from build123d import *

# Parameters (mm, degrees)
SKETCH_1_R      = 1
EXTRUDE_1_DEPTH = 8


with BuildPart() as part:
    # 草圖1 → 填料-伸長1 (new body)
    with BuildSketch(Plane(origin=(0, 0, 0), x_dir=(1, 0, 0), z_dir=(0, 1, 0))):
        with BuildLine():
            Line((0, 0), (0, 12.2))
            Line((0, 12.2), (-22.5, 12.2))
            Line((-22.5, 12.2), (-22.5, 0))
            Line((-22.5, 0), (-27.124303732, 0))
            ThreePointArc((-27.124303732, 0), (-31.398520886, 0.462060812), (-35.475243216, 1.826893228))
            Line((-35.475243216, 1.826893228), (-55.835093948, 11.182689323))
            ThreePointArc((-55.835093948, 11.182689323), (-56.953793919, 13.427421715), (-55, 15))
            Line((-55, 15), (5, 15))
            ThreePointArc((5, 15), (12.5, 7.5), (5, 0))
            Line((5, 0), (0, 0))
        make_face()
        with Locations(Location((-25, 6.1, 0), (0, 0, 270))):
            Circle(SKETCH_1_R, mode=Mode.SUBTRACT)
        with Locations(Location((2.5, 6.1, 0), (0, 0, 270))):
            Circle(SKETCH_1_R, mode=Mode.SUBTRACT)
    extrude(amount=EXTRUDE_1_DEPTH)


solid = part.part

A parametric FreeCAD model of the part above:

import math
import FreeCAD as App
import Part
import Sketcher

doc = App.newDocument("Part")
params = doc.addObject("Spreadsheet::Sheet", "Params")
for row, (alias, value) in enumerate([
    ("sketch1_diameter", "2 mm"),
    ("sketch1_radius", "2 mm"),
    ("sketch1_radius2", "20 mm"),
    ("sketch1_radius3", "7.5 mm"),
    ("sketch1_width", "5 mm"),
    ("pad1_length", "8 mm"),
], start=1):
    params.set(f"A{row}", alias)
    params.set(f"B{row}", "=" + value)
    params.setAlias(f"B{row}", alias)

body = doc.addObject("PartDesign::Body", "Body")

# Sketch on XZ plane
sketch1 = body.newObject("Sketcher::SketchObject", "Sketch")
sketch1.AttachmentSupport = (doc.getObject("XZ_Plane"), [""])
sketch1.MapMode = "FlatFace"
sketch1.addGeometry(Part.LineSegment(App.Vector(0, -12.2, 0), App.Vector(0, 0, 0)), False)
sketch1.addGeometry(Part.LineSegment(App.Vector(0, 0, 0), App.Vector(5, 0, 0)), False)
sketch1.addGeometry(Part.ArcOfCircle(Part.Circle(App.Vector(5, -7.5, 0), App.Vector(0, 0, 1), 7.5), math.radians(-90), math.radians(90)), False)
sketch1.addGeometry(Part.LineSegment(App.Vector(5, -15, 0), App.Vector(-55, -15, 0)), False)
sketch1.addGeometry(Part.ArcOfCircle(Part.Circle(App.Vector(-55, -13, 0), App.Vector(0, 0, 1), 2), math.radians(114.679814), math.radians(270)), False)
sketch1.addGeometry(Part.LineSegment(App.Vector(-55.835094, -11.182689, 0), App.Vector(-35.475243, -1.826893, 0)), False)
sketch1.addGeometry(Part.ArcOfCircle(Part.Circle(App.Vector(-27.124304, -20, 0), App.Vector(0, 0, 1), 20), math.radians(90), math.radians(114.679814)), False)
sketch1.addGeometry(Part.LineSegment(App.Vector(-27.124304, 0, 0), App.Vector(-22.5, 0, 0)), False)
sketch1.addGeometry(Part.LineSegment(App.Vector(-22.5, 0, 0), App.Vector(-22.5, -12.2, 0)), False)
sketch1.addGeometry(Part.LineSegment(App.Vector(-22.5, -12.2, 0), App.Vector(0, -12.2, 0)), False)
sketch1.addGeometry(Part.Circle(App.Vector(2.5, -6.1, 0), App.Vector(0, 0, 1), 1), False)
sketch1.addGeometry(Part.Circle(App.Vector(-25, -6.1, 0), App.Vector(0, 0, 1), 1), False)
sketch1.addConstraint(Sketcher.Constraint("Coincident", 0, 2, 1, 1))
sketch1.addConstraint(Sketcher.Constraint("Tangent", 1, 2, 2, 2))
sketch1.addConstraint(Sketcher.Constraint("Tangent", 2, 1, 3, 1))
sketch1.addConstraint(Sketcher.Constraint("Tangent", 3, 2, 4, 2))
sketch1.addConstraint(Sketcher.Constraint("Tangent", 4, 1, 5, 1))
sketch1.addConstraint(Sketcher.Constraint("Tangent", 5, 2, 6, 2))
sketch1.addConstraint(Sketcher.Constraint("Tangent", 6, 1, 7, 1))
sketch1.addConstraint(Sketcher.Constraint("Coincident", 7, 2, 8, 1))
sketch1.addConstraint(Sketcher.Constraint("Coincident", 8, 2, 9, 1))
sketch1.addConstraint(Sketcher.Constraint("Coincident", 9, 2, 0, 1))
sketch1.addConstraint(Sketcher.Constraint("Vertical", 0))
sketch1.addConstraint(Sketcher.Constraint("Horizontal", 1))
sketch1.addConstraint(Sketcher.Constraint("Horizontal", 3))
sketch1.addConstraint(Sketcher.Constraint("Horizontal", 7))
sketch1.addConstraint(Sketcher.Constraint("Vertical", 8))
sketch1.addConstraint(Sketcher.Constraint("Horizontal", 9))
sketch1.addConstraint(Sketcher.Constraint("Coincident", 0, 2, -1, 1))
sketch1.addConstraint(Sketcher.Constraint("Equal", 10, 11))
sketch1.addConstraint(Sketcher.Constraint("PointOnObject", 6, 1, -1))
sketch1.addConstraint(Sketcher.Constraint("Horizontal", 10, 3, 11, 3))
sketch1.addConstraint(Sketcher.Constraint("Diameter", 10, 2.0))
sketch1.addConstraint(Sketcher.Constraint("Radius", 4, 2.0))
sketch1.addConstraint(Sketcher.Constraint("Radius", 6, 20.0))
sketch1.addConstraint(Sketcher.Constraint("Radius", 2, 7.5))
sketch1.addConstraint(Sketcher.Constraint("DistanceX", 1, 1, 1, 2, 5.0))
sketch1.addConstraint(Sketcher.Constraint("DistanceX", 3, 2, 3, 1, 60.0))
sketch1.addConstraint(Sketcher.Constraint("DistanceX", 9, 1, 9, 2, 22.5))
sketch1.addConstraint(Sketcher.Constraint("DistanceY", 0, 1, 0, 2, 12.2))
sketch1.addConstraint(Sketcher.Constraint("DistanceX", 11, 3, -1, 1, 25.0))
sketch1.addConstraint(Sketcher.Constraint("DistanceX", -1, 1, 10, 3, 2.5))
sketch1.addConstraint(Sketcher.Constraint("DistanceY", 10, 3, -1, 1, 6.1))
sketch1.addConstraint(Sketcher.Constraint("Distance", 5, 22.406571))
sketch1.setExpression("Constraints[20]", "Params.sketch1_diameter")
sketch1.setExpression("Constraints[21]", "Params.sketch1_radius")
sketch1.setExpression("Constraints[22]", "Params.sketch1_radius2")
sketch1.setExpression("Constraints[23]", "Params.sketch1_radius3")
sketch1.setExpression("Constraints[24]", "Params.sketch1_width")
pad1 = body.newObject("PartDesign::Pad", "Pad")
pad1.Profile = sketch1
pad1.setExpression("Length", "Params.pad1_length")
pad1.Reversed = True

doc.recompute()
